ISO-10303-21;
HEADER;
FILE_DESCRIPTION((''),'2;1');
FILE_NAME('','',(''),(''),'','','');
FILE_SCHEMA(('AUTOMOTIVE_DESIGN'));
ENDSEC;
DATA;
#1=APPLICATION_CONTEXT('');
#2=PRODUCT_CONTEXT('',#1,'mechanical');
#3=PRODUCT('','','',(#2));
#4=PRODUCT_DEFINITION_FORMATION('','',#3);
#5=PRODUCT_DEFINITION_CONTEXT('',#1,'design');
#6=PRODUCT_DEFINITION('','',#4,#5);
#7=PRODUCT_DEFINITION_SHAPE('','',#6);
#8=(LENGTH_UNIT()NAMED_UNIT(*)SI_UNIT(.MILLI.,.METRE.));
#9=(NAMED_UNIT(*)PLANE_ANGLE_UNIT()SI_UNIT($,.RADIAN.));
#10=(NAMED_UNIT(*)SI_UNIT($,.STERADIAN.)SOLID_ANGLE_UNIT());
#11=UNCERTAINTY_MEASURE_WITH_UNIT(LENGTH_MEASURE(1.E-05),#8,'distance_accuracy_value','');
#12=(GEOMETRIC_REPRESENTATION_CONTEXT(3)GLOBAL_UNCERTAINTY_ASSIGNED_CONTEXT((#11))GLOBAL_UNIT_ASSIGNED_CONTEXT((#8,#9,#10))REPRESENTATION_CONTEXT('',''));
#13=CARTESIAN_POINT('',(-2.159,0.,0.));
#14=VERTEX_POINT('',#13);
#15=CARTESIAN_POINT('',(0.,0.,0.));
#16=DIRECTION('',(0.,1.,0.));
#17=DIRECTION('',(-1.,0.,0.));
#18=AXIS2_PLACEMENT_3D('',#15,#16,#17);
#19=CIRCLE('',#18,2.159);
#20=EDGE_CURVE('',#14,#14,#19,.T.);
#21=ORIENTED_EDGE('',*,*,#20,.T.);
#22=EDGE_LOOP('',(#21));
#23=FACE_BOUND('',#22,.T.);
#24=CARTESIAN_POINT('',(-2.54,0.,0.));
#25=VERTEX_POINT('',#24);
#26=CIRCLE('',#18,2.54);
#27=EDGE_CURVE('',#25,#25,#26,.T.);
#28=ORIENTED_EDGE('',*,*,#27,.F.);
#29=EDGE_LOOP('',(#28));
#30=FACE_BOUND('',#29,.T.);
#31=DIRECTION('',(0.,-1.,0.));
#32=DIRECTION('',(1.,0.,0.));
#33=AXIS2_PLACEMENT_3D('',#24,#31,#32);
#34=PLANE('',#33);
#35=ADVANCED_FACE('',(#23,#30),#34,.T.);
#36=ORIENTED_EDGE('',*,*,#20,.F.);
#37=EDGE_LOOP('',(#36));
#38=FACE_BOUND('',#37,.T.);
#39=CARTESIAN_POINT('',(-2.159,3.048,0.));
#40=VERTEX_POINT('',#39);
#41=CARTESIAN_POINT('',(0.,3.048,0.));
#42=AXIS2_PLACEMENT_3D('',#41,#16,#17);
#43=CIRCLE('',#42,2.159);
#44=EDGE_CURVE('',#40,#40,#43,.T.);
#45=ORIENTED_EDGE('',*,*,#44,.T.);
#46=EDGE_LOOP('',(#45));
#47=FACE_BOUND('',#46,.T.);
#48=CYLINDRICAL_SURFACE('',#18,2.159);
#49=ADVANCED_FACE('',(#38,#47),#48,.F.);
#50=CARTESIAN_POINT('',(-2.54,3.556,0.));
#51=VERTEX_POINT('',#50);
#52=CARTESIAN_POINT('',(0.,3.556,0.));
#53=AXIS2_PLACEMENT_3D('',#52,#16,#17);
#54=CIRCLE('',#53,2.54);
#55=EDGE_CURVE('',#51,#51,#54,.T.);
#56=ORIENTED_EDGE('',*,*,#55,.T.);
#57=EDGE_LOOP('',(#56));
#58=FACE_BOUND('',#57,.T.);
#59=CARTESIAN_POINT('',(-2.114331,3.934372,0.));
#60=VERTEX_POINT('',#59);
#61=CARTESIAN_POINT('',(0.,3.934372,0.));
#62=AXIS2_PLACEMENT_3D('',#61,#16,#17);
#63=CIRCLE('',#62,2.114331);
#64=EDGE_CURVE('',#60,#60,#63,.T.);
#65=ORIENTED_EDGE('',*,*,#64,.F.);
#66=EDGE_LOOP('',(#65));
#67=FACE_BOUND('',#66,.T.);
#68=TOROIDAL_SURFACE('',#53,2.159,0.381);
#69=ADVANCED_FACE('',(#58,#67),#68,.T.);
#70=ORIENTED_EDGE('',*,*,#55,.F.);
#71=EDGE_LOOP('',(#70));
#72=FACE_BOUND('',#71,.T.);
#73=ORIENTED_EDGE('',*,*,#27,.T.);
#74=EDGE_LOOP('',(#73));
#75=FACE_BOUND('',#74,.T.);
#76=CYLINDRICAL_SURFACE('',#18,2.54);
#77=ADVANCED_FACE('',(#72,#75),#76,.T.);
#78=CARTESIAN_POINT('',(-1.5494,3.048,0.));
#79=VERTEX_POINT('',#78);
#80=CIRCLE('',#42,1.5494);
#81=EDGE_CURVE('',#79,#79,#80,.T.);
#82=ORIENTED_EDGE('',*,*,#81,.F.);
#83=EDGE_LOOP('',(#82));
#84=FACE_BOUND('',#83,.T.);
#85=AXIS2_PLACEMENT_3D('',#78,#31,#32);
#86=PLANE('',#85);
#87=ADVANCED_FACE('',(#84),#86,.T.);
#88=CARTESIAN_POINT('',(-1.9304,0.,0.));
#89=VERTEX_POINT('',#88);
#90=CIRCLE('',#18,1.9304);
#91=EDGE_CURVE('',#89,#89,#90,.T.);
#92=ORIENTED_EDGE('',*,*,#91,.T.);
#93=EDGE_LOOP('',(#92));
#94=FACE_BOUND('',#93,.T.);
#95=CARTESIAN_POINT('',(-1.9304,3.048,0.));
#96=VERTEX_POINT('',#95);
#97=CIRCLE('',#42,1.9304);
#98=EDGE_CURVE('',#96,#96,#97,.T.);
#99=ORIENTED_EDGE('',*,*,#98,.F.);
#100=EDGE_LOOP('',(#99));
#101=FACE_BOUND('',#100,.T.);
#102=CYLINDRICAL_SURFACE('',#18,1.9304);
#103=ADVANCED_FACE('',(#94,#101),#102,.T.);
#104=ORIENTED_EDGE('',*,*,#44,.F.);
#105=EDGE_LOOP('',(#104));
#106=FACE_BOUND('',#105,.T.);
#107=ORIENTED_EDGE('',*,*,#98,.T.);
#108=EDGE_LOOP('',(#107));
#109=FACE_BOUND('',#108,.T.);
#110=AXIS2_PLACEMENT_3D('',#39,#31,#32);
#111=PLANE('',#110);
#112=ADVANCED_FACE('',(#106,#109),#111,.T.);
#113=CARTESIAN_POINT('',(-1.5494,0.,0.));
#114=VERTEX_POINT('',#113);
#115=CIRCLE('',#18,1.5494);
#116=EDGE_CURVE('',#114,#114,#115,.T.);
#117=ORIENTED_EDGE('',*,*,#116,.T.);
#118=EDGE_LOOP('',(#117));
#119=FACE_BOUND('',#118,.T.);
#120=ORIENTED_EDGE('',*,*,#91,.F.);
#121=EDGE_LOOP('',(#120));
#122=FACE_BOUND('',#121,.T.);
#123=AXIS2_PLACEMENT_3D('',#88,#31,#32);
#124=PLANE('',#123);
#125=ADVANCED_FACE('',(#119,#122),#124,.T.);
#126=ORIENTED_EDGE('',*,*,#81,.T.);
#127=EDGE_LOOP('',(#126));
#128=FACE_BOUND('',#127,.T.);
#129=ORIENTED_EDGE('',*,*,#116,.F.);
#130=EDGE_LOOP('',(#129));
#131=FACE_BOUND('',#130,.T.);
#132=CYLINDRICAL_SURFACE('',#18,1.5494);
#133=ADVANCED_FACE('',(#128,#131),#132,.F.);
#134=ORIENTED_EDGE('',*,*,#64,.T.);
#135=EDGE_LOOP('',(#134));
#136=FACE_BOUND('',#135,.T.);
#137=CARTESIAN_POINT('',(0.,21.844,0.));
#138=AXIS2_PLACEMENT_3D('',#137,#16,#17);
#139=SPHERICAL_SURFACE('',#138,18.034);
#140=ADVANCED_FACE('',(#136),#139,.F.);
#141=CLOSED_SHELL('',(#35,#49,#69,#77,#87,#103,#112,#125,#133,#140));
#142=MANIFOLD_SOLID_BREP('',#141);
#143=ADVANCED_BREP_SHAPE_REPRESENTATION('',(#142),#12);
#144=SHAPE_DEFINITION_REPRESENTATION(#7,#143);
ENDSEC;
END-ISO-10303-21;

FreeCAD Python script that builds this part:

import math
import FreeCAD as App
import Part
import Sketcher
from FreeCAD import Vector
Q = App.Units.Quantity

doc = App.newDocument("Part")
params = doc.addObject("Spreadsheet::Sheet", "Params")
for row, (alias, value) in enumerate([
    ("sketch1_radius", "0.71 in"),
    ("sketch1_radius2", "0.015 in"),
    ("sketch1_height", "0.12 in"),
    ("sketch1_height2", "0.03 in"),
    ("sketch1_height3", "0.14 in"),
    ("revolution_angle", "360 deg"),
], start=1):
    params.set(f"A{row}", alias)
    params.set(f"B{row}", "=" + value)
    params.setAlias(f"B{row}", alias)

body = doc.addObject("PartDesign::Body", "Body")

sketch1 = doc.addObject("Sketcher::SketchObject", "Sketch")
body.addObject(sketch1)
sketch1.AttachmentSupport = (doc.XY_Plane, [""])
sketch1.MapMode = "FlatFace"
sketch1.addGeometry([
    Part.LineSegment(Vector(-1.55, 0, 0), Vector(-1.55, 3.05, 0)),
    Part.LineSegment(Vector(-1.55, 3.05, 0), Vector(0, 3.05, 0)),
    Part.LineSegment(Vector(0, 3.05, 0), Vector(0, 3.81, 0)),
    Part.ArcOfCircle(Part.Circle(Vector(0, 21.84, 0), Vector(0, 0, 1), 18.03), math.radians(-96.73), math.radians(-90)),
    Part.ArcOfCircle(Part.Circle(Vector(-2.16, 3.56, 0), Vector(0, 0, 1), 0.38), math.radians(83), math.radians(180)),
    Part.LineSegment(Vector(-2.54, 3.56, 0), Vector(-2.54, 0, 0)),
    Part.LineSegment(Vector(-2.54, 0, 0), Vector(-2.16, 0, 0)),
    Part.LineSegment(Vector(-2.16, 0, 0), Vector(-2.16, 3.05, 0)),
    Part.LineSegment(Vector(-2.16, 3.05, 0), Vector(-1.93, 3.05, 0)),
    Part.LineSegment(Vector(-1.93, 3.05, 0), Vector(-1.93, 0, 0)),
    Part.LineSegment(Vector(-1.93, 0, 0), Vector(-1.55, 0, 0)),
], False)
sketch1.addConstraint([
    Sketcher.Constraint("Coincident", 0, 2, 1, 1),
    Sketcher.Constraint("Coincident", 1, 2, 2, 1),
    Sketcher.Constraint("Coincident", 2, 2, 3, 2),
    Sketcher.Constraint("Tangent", 3, 1, 4, 1),
    Sketcher.Constraint("Tangent", 4, 2, 5, 1),
    Sketcher.Constraint("Coincident", 5, 2, 6, 1),
    Sketcher.Constraint("Coincident", 6, 2, 7, 1),
    Sketcher.Constraint("Coincident", 7, 2, 8, 1),
    Sketcher.Constraint("Coincident", 8, 2, 9, 1),
    Sketcher.Constraint("Coincident", 9, 2, 10, 1),
    Sketcher.Constraint("Coincident", 10, 2, 0, 1),
    Sketcher.Constraint("Vertical", 0),
    Sketcher.Constraint("Horizontal", 1),
    Sketcher.Constraint("Vertical", 2),
    Sketcher.Constraint("Vertical", 5),
    Sketcher.Constraint("Horizontal", 6),
    Sketcher.Constraint("Vertical", 7),
    Sketcher.Constraint("Horizontal", 8),
    Sketcher.Constraint("Vertical", 9),
    Sketcher.Constraint("Horizontal", 10),
    Sketcher.Constraint("PointOnObject", 3, 3, -2),
    Sketcher.Constraint("PointOnObject", 1, 2, -2),
    Sketcher.Constraint("PointOnObject", 5, 2, -1),
    Sketcher.Constraint("PointOnObject", 9, 2, -1),
    Sketcher.Constraint("Horizontal", 1, 2, 7, 2),
    Sketcher.Constraint("Vertical", 4, 3, 6, 2),
    Sketcher.Constraint("Equal", 6, 10),
    Sketcher.Constraint("Radius", 3, Q("0.71 in")),
    Sketcher.Constraint("Radius", 4, Q("0.015 in")),
    Sketcher.Constraint("DistanceY", 0, 1, 0, 2, Q("0.12 in")),
    Sketcher.Constraint("DistanceY", 2, 1, 2, 2, Q("0.03 in")),
    Sketcher.Constraint("DistanceY", 5, 2, 5, 1, Q("0.14 in")),
    Sketcher.Constraint("DistanceX", 1, 1, 1, 2, Q("0.061 in")),
])
sketch1.setExpression("Constraints[27]", "Params.sketch1_radius")
sketch1.setExpression("Constraints[28]", "Params.sketch1_radius2")
sketch1.setExpression("Constraints[29]", "Params.sketch1_height")
sketch1.setExpression("Constraints[30]", "Params.sketch1_height2")
sketch1.setExpression("Constraints[31]", "Params.sketch1_height3")
revolution = doc.addObject("PartDesign::Revolution", "Revolution")
body.addObject(revolution)
revolution.Profile = sketch1
revolution.ReferenceAxis = (sketch1, ["V_Axis"])
revolution.setExpression("Angle", "Params.revolution_angle")

doc.recompute()
